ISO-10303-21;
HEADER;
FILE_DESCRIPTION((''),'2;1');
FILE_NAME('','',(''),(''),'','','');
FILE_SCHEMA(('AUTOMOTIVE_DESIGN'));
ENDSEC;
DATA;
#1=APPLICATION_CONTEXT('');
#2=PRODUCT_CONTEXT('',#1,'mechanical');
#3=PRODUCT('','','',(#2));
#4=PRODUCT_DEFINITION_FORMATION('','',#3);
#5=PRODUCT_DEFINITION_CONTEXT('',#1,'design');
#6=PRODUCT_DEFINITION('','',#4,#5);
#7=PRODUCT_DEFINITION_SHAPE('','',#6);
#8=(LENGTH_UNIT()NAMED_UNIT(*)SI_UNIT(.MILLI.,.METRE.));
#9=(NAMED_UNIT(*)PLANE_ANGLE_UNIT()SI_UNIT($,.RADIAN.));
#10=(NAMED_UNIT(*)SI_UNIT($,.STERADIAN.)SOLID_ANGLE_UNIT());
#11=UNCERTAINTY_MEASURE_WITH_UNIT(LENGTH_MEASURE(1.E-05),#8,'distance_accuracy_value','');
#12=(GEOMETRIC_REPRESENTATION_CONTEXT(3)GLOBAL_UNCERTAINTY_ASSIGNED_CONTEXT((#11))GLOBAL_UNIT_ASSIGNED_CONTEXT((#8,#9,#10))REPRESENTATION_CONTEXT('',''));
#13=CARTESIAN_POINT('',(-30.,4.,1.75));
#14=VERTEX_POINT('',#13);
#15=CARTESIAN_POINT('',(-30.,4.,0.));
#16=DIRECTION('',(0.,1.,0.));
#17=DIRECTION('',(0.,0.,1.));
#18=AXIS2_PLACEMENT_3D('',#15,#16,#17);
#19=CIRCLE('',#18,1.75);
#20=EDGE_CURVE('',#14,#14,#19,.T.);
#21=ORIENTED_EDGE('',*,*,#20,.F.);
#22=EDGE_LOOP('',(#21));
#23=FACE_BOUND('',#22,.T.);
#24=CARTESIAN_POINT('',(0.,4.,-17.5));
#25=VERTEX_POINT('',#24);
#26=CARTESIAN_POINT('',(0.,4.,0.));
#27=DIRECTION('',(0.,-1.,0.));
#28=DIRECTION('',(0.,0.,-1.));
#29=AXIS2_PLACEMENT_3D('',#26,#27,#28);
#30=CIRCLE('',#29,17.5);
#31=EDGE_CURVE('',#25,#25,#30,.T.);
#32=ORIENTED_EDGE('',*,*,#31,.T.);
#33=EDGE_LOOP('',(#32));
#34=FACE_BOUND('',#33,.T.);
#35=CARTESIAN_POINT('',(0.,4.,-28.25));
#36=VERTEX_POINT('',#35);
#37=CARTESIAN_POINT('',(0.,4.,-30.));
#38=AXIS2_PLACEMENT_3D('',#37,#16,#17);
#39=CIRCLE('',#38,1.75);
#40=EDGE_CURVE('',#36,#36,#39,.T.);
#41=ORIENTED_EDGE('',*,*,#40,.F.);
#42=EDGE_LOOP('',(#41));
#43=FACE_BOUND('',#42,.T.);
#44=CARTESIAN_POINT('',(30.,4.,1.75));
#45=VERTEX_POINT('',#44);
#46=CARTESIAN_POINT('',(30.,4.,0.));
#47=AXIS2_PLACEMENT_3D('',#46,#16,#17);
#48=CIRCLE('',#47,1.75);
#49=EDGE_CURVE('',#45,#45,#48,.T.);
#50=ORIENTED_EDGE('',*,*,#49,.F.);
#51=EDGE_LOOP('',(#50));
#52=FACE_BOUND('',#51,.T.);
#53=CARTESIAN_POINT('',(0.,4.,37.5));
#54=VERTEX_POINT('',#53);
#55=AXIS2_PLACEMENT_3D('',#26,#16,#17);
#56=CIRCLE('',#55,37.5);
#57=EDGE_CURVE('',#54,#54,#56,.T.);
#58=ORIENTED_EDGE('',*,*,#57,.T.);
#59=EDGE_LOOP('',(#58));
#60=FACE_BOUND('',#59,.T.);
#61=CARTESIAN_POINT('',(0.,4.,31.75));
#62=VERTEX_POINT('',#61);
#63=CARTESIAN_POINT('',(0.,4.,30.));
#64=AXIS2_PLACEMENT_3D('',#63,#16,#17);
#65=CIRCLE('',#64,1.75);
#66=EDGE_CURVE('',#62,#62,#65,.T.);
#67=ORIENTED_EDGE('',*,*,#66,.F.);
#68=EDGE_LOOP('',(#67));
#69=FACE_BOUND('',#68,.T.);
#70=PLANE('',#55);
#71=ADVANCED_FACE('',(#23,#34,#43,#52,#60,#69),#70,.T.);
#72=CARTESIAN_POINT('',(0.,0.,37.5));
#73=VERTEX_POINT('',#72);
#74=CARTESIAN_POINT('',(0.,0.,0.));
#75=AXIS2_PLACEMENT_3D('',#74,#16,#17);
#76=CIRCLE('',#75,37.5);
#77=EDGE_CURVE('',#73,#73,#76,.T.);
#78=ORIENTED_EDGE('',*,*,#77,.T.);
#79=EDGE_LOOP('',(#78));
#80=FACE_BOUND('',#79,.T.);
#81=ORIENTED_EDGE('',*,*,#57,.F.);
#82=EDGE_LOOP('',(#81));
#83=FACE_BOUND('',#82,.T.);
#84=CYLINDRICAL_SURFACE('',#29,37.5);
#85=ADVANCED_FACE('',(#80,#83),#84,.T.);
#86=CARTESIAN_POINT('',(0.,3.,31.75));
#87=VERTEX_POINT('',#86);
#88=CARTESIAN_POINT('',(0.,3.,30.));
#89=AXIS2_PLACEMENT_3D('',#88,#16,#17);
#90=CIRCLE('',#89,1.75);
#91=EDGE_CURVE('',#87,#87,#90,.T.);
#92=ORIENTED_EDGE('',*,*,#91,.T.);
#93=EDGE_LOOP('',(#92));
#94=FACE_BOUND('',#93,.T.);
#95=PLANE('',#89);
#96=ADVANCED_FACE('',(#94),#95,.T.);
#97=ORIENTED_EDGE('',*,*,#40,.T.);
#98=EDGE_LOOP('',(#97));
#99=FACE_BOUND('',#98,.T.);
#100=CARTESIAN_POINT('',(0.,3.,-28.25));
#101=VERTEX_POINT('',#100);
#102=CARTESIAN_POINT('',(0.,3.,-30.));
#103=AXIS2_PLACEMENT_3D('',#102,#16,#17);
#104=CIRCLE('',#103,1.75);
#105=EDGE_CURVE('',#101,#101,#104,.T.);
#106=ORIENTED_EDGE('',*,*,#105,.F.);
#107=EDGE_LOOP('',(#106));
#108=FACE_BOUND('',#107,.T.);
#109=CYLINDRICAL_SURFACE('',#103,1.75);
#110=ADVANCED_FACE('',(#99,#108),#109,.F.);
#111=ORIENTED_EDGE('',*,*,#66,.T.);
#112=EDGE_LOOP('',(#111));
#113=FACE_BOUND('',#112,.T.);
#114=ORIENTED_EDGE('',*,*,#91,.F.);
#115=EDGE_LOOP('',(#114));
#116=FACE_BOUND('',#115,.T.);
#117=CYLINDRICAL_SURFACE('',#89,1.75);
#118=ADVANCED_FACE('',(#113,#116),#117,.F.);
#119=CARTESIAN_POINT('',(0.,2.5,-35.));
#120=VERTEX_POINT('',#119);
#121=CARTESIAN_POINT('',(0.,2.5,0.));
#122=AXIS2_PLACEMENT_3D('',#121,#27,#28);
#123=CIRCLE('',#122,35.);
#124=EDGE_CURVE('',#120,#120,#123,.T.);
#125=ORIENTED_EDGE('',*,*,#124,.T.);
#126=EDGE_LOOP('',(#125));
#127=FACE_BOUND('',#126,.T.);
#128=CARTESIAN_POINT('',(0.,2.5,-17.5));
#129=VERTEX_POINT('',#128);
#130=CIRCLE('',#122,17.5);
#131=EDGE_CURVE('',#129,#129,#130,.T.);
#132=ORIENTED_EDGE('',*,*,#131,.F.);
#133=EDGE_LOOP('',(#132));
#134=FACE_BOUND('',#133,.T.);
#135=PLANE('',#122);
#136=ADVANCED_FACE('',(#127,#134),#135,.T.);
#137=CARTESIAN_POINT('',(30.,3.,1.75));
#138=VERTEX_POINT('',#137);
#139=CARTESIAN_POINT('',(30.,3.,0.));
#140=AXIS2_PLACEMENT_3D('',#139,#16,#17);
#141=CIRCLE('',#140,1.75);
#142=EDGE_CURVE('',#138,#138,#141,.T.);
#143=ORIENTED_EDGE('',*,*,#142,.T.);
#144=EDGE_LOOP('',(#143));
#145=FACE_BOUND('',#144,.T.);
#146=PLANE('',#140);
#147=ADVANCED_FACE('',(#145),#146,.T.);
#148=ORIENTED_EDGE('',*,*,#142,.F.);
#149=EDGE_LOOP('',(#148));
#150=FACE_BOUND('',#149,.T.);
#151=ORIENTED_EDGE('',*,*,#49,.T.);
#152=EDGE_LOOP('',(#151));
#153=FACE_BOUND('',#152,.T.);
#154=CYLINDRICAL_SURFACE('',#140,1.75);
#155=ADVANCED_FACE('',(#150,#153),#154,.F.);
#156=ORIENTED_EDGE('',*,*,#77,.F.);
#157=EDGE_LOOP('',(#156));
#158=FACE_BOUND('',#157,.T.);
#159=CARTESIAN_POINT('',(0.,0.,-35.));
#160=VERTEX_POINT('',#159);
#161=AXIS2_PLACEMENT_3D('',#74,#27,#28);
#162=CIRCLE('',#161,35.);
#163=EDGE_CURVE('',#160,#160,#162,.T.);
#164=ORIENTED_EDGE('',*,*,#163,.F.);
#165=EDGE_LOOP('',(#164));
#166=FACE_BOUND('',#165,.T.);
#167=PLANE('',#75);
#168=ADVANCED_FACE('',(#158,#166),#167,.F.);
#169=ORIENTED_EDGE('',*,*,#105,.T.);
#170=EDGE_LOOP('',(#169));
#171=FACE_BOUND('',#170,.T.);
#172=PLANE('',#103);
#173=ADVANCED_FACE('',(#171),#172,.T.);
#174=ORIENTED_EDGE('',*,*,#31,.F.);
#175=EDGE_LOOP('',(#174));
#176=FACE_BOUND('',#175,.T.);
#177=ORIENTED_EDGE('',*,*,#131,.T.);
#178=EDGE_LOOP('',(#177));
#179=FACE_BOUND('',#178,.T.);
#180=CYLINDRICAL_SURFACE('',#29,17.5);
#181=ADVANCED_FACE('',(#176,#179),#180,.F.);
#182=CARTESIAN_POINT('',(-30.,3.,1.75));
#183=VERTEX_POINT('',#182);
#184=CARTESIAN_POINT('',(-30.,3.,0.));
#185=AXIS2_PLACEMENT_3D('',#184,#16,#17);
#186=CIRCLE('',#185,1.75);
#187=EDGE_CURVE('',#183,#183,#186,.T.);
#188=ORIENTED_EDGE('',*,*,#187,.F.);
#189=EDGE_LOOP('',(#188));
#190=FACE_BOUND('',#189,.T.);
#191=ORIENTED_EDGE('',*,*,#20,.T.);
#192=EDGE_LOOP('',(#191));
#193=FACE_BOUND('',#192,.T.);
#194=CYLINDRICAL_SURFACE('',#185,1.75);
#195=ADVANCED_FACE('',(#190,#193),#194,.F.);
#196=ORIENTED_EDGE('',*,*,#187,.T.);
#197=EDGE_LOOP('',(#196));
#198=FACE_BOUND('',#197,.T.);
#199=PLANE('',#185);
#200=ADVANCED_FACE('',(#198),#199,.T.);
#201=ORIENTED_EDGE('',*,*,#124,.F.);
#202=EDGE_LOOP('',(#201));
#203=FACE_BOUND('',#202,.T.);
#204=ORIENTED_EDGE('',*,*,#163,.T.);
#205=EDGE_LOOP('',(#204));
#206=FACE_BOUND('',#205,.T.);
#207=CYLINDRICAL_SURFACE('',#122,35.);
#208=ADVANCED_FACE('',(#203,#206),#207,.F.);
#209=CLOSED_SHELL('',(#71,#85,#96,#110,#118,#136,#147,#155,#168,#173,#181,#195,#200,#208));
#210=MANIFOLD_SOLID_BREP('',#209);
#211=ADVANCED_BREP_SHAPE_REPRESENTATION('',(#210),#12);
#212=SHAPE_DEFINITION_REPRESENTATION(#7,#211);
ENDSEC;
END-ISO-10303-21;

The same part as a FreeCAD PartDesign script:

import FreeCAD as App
import Part
import Sketcher

V = App.Vector

doc = App.newDocument("Part")
body = doc.addObject("PartDesign::Body", "Body")

# Sketch on XZ plane
sketch1 = body.newObject("Sketcher::SketchObject", "Sketch")
sketch1.AttachmentSupport = (doc.getObject("XZ_Plane"), [""])
sketch1.MapMode = "FlatFace"
sketch1.addGeometry(Part.Circle(V(0, 0, 0), V(0, 0, 1), 38), False)
sketch1.addConstraint(Sketcher.Constraint("Coincident", 0, 3, -1, 1))
sketch1.addConstraint(Sketcher.Constraint("Diameter", 0, 75.0))
pad1 = body.newObject("PartDesign::Pad", "Pad")
pad1.Profile = sketch1
pad1.Length = 4
pad1.Reversed = True

# Sketch on XZ plane
sketch2 = body.newObject("Sketcher::SketchObject", "Sketch001")
sketch2.AttachmentSupport = (doc.getObject("XZ_Plane"), [""])
sketch2.MapMode = "FlatFace"
sketch2.AttachmentOffset = App.Placement(V(0, 0, -4), App.Rotation())
sketch2.addGeometry(Part.Circle(V(0, -30, 0), V(0, 0, 1), 1.8), False)
sketch2.addGeometry(Part.Circle(V(30, 0, 0), V(0, 0, 1), 1.8), False)
sketch2.addGeometry(Part.Circle(V(0, 30, 0), V(0, 0, 1), 1.8), False)
sketch2.addGeometry(Part.Circle(V(-30, 0, 0), V(0, 0, 1), 1.8), False)
sketch2.addConstraint(Sketcher.Constraint("Equal", 0, 1))
sketch2.addConstraint(Sketcher.Constraint("Equal", 1, 2))
sketch2.addConstraint(Sketcher.Constraint("Equal", 2, 3))
sketch2.addConstraint(Sketcher.Constraint("Symmetric", 0, 3, 2, 3, -1, 1))
sketch2.addConstraint(Sketcher.Constraint("Symmetric", 1, 3, 3, 3, -1, 1))
sketch2.addConstraint(Sketcher.Constraint("PointOnObject", 0, 3, -2))
sketch2.addConstraint(Sketcher.Constraint("PointOnObject", 1, 3, -1))
sketch2.addConstraint(Sketcher.Constraint("Diameter", 0, 3.5))
sketch2.addConstraint(Sketcher.Constraint("DistanceY", 0, 3, -1, 1, 30.0))
sketch2.addConstraint(Sketcher.Constraint("DistanceX", -1, 1, 1, 3, 30.0))
pocket1 = body.newObject("PartDesign::Pocket", "Pocket")
pocket1.Profile = sketch2
pocket1.Length = 1
pocket1.Reversed = True

# Sketch on XZ plane
sketch3 = body.newObject("Sketcher::SketchObject", "Sketch002")
sketch3.AttachmentSupport = (doc.getObject("XZ_Plane"), [""])
sketch3.MapMode = "FlatFace"
sketch3.addGeometry(Part.Circle(V(0, 0, 0), V(0, 0, 1), 35), False)
sketch3.addConstraint(Sketcher.Constraint("Coincident", 0, 3, -1, 1))
sketch3.addConstraint(Sketcher.Constraint("Diameter", 0, 70.0))
pocket2 = body.newObject("PartDesign::Pocket", "Pocket001")
pocket2.Profile = sketch3
pocket2.Length = 2.5

# Sketch on XZ plane
sketch4 = body.newObject("Sketcher::SketchObject", "Sketch003")
sketch4.AttachmentSupport = (doc.getObject("XZ_Plane"), [""])
sketch4.MapMode = "FlatFace"
sketch4.AttachmentOffset = App.Placement(V(0, 0, -2.5), App.Rotation())
sketch4.addGeometry(Part.Circle(V(0, 0, 0), V(0, 0, 1), 18), False)
sketch4.addConstraint(Sketcher.Constraint("Coincident", 0, 3, -1, 1))
sketch4.addConstraint(Sketcher.Constraint("Diameter", 0, 35.0))
pocket3 = body.newObject("PartDesign::Pocket", "Pocket002")
pocket3.Profile = sketch4
pocket3.Type = "ThroughAll"

doc.recompute()
